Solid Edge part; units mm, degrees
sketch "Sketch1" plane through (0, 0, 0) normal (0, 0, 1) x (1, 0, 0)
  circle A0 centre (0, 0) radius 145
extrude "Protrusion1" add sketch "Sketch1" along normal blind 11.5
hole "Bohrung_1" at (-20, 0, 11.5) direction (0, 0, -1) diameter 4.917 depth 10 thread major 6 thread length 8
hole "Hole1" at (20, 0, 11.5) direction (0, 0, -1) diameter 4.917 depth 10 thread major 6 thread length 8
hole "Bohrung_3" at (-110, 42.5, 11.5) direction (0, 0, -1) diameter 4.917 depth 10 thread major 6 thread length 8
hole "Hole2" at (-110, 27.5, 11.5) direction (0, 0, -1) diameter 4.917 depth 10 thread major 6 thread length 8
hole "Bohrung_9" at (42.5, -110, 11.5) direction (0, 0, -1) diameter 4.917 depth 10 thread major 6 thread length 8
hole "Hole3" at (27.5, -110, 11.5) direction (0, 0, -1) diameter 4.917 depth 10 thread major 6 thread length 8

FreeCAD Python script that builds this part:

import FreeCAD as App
import Part
import Sketcher

V = App.Vector

doc = App.newDocument("Part")
body = doc.addObject("PartDesign::Body", "Body")

# Sketch on XY plane
sketch1 = body.newObject("Sketcher::SketchObject", "Sketch")
sketch1.AttachmentSupport = (doc.getObject("XY_Plane"), [""])
sketch1.MapMode = "FlatFace"
sketch1.addGeometry(Part.Circle(V(0, 0, 0), V(0, 0, 1), 145), False)
sketch1.addConstraint(Sketcher.Constraint("Coincident", 0, 3, -1, 1))
sketch1.addConstraint(Sketcher.Constraint("Diameter", 0, 290.0))
pad1 = body.newObject("PartDesign::Pad", "Pad")
pad1.Profile = sketch1
pad1.Length = 11.5

# Sketch on XY plane
sketch2 = body.newObject("Sketcher::SketchObject", "Sketch001")
sketch2.AttachmentSupport = (doc.getObject("XY_Plane"), [""])
sketch2.MapMode = "FlatFace"
sketch2.AttachmentOffset = App.Placement(V(0, 0, 11.5), App.Rotation())
sketch2.addGeometry(Part.Circle(V(-20, 0, 0), V(0, 0, 1), 2.4585), False)
sketch2.addConstraint(Sketcher.Constraint("PointOnObject", 0, 3, -1))
sketch2.addConstraint(Sketcher.Constraint("Diameter", 0, 4.917))
sketch2.addConstraint(Sketcher.Constraint("DistanceX", 0, 3, -1, 1, 20.0))
doc.recompute()
hole = body.newObject("PartDesign::Hole", "Hole")
hole.Profile = sketch2
hole.ThreadType = "None"
hole.Diameter = 4.917
hole.DepthType = "Dimension"
hole.Depth = 10
hole.DrillPoint = "Flat"

# Sketch on XY plane
sketch3 = body.newObject("Sketcher::SketchObject", "Sketch002")
sketch3.AttachmentSupport = (doc.getObject("XY_Plane"), [""])
sketch3.MapMode = "FlatFace"
sketch3.AttachmentOffset = App.Placement(V(0, 0, 11.5), App.Rotation())
sketch3.addGeometry(Part.Circle(V(20, 0, 0), V(0, 0, 1), 2.4585), False)
sketch3.addConstraint(Sketcher.Constraint("PointOnObject", 0, 3, -1))
sketch3.addConstraint(Sketcher.Constraint("Diameter", 0, 4.917))
sketch3.addConstraint(Sketcher.Constraint("DistanceX", -1, 1, 0, 3, 20.0))
doc.recompute()
hole2 = body.newObject("PartDesign::Hole", "Hole001")
hole2.Profile = sketch3
hole2.ThreadType = "None"
hole2.Diameter = 4.917
hole2.DepthType = "Dimension"
hole2.Depth = 10
hole2.DrillPoint = "Flat"

# Sketch on XY plane
sketch4 = body.newObject("Sketcher::SketchObject", "Sketch003")
sketch4.AttachmentSupport = (doc.getObject("XY_Plane"), [""])
sketch4.MapMode = "FlatFace"
sketch4.AttachmentOffset = App.Placement(V(0, 0, 11.5), App.Rotation())
sketch4.addGeometry(Part.Circle(V(-110, 42.5, 0), V(0, 0, 1), 2.4585), False)
sketch4.addConstraint(Sketcher.Constraint("Diameter", 0, 4.917))
sketch4.addConstraint(Sketcher.Constraint("DistanceX", 0, 3, -1, 1, 110.0))
sketch4.addConstraint(Sketcher.Constraint("DistanceY", -1, 1, 0, 3, 42.5))
doc.recompute()
hole3 = body.newObject("PartDesign::Hole", "Hole002")
hole3.Profile = sketch4
hole3.ThreadType = "None"
hole3.Diameter = 4.917
hole3.DepthType = "Dimension"
hole3.Depth = 10
hole3.DrillPoint = "Flat"

# Sketch on XY plane
sketch5 = body.newObject("Sketcher::SketchObject", "Sketch004")
sketch5.AttachmentSupport = (doc.getObject("XY_Plane"), [""])
sketch5.MapMode = "FlatFace"
sketch5.AttachmentOffset = App.Placement(V(0, 0, 11.5), App.Rotation())
sketch5.addGeometry(Part.Circle(V(-110, 27.5, 0), V(0, 0, 1), 2.4585), False)
sketch5.addConstraint(Sketcher.Constraint("Diameter", 0, 4.917))
sketch5.addConstraint(Sketcher.Constraint("DistanceX", 0, 3, -1, 1, 110.0))
sketch5.addConstraint(Sketcher.Constraint("DistanceY", -1, 1, 0, 3, 27.5))
doc.recompute()
hole4 = body.newObject("PartDesign::Hole", "Hole003")
hole4.Profile = sketch5
hole4.ThreadType = "None"
hole4.Diameter = 4.917
hole4.DepthType = "Dimension"
hole4.Depth = 10
hole4.DrillPoint = "Flat"

# Sketch on XY plane
sketch6 = body.newObject("Sketcher::SketchObject", "Sketch005")
sketch6.AttachmentSupport = (doc.getObject("XY_Plane"), [""])
sketch6.MapMode = "FlatFace"
sketch6.AttachmentOffset = App.Placement(V(0, 0, 11.5), App.Rotation())
sketch6.addGeometry(Part.Circle(V(42.5, -110, 0), V(0, 0, 1), 2.4585), False)
sketch6.addConstraint(Sketcher.Constraint("Diameter", 0, 4.917))
sketch6.addConstraint(Sketcher.Constraint("DistanceY", 0, 3, -1, 1, 110.0))
sketch6.addConstraint(Sketcher.Constraint("DistanceX", -1, 1, 0, 3, 42.5))
doc.recompute()
hole5 = body.newObject("PartDesign::Hole", "Hole004")
hole5.Profile = sketch6
hole5.ThreadType = "None"
hole5.Diameter = 4.917
hole5.DepthType = "Dimension"
hole5.Depth = 10
hole5.DrillPoint = "Flat"

# Sketch on XY plane
sketch7 = body.newObject("Sketcher::SketchObject", "Sketch006")
sketch7.AttachmentSupport = (doc.getObject("XY_Plane"), [""])
sketch7.MapMode = "FlatFace"
sketch7.AttachmentOffset = App.Placement(V(0, 0, 11.5), App.Rotation())
sketch7.addGeometry(Part.Circle(V(27.5, -110, 0), V(0, 0, 1), 2.4585), False)
sketch7.addConstraint(Sketcher.Constraint("Diameter", 0, 4.917))
sketch7.addConstraint(Sketcher.Constraint("DistanceY", 0, 3, -1, 1, 110.0))
sketch7.addConstraint(Sketcher.Constraint("DistanceX", -1, 1, 0, 3, 27.5))
doc.recompute()
hole6 = body.newObject("PartDesign::Hole", "Hole005")
hole6.Profile = sketch7
hole6.ThreadType = "None"
hole6.Diameter = 4.917
hole6.DepthType = "Dimension"
hole6.Depth = 10
hole6.DrillPoint = "Flat"

doc.recompute()
